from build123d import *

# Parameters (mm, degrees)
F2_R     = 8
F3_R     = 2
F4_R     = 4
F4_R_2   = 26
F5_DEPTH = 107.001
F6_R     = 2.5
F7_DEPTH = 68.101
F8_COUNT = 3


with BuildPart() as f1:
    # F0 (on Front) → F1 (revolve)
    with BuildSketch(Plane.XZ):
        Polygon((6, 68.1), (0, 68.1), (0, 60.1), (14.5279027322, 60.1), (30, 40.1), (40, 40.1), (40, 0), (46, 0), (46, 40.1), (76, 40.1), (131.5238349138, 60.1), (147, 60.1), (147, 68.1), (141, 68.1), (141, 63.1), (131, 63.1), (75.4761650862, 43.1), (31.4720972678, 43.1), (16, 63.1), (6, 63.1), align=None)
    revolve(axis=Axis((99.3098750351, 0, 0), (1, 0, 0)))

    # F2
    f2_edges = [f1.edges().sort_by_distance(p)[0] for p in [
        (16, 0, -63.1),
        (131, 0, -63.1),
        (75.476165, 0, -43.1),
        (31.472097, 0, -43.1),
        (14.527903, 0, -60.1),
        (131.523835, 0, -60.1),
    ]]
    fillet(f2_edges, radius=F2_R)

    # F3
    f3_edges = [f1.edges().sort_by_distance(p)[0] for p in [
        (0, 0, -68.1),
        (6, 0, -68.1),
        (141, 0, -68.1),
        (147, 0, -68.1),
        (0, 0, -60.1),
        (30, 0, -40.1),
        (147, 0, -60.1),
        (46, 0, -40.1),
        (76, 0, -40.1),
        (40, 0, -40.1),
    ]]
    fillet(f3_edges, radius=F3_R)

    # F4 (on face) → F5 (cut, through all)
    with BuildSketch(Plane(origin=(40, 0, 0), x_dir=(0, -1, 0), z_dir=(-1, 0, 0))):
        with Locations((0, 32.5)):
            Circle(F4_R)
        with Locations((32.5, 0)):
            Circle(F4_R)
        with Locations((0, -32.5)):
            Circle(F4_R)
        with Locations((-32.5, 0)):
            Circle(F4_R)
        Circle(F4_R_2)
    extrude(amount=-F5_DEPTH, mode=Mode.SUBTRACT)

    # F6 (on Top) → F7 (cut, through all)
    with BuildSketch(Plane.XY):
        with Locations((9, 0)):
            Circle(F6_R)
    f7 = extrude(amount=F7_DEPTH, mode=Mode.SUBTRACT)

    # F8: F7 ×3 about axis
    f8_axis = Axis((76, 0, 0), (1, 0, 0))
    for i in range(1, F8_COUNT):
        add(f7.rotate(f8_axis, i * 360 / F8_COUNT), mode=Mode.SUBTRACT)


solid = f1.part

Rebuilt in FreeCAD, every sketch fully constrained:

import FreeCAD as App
import Part
import Sketcher


def edges_at(feature, points):
    """Names of the edges that pass closest to the given points."""
    edges = feature.Shape.Edges
    near = lambda p: min(range(len(edges)), key=lambda i: edges[i].distToShape(Part.Vertex(*p))[0])
    return sorted({f"Edge{near(p) + 1}" for p in points})

doc = App.newDocument("Part")
body = doc.addObject("PartDesign::Body", "Body")

# Sketch on XZ plane
sketch1 = body.newObject("Sketcher::SketchObject", "Sketch")
sketch1.AttachmentSupport = (doc.getObject("XZ_Plane"), [""])
sketch1.MapMode = "FlatFace"
sketch1.addGeometry([
    Part.LineSegment(App.Vector(6, 68.1, 0), App.Vector(0, 68.1, 0)),  # 0
    Part.LineSegment(App.Vector(0, 68.1, 0), App.Vector(0, 60.1, 0)),  # 1
    Part.LineSegment(App.Vector(0, 60.1, 0), App.Vector(14.5, 60.1, 0)),  # 2
    Part.LineSegment(App.Vector(14.5, 60.1, 0), App.Vector(30, 40.1, 0)),  # 3
    Part.LineSegment(App.Vector(30, 40.1, 0), App.Vector(40, 40.1, 0)),  # 4
    Part.LineSegment(App.Vector(40, 40.1, 0), App.Vector(40, 0, 0)),  # 5
    Part.LineSegment(App.Vector(40, 0, 0), App.Vector(46, 0, 0)),  # 6
    Part.LineSegment(App.Vector(46, 0, 0), App.Vector(46, 40.1, 0)),  # 7
    Part.LineSegment(App.Vector(46, 40.1, 0), App.Vector(76, 40.1, 0)),  # 8
    Part.LineSegment(App.Vector(76, 40.1, 0), App.Vector(131.5, 60.1, 0)),  # 9
    Part.LineSegment(App.Vector(131.5, 60.1, 0), App.Vector(147, 60.1, 0)),  # 10
    Part.LineSegment(App.Vector(147, 60.1, 0), App.Vector(147, 68.1, 0)),  # 11
    Part.LineSegment(App.Vector(147, 68.1, 0), App.Vector(141, 68.1, 0)),  # 12
    Part.LineSegment(App.Vector(141, 68.1, 0), App.Vector(141, 63.1, 0)),  # 13
    Part.LineSegment(App.Vector(141, 63.1, 0), App.Vector(131, 63.1, 0)),  # 14
    Part.LineSegment(App.Vector(131, 63.1, 0), App.Vector(75.5, 43.1, 0)),  # 15
    Part.LineSegment(App.Vector(75.5, 43.1, 0), App.Vector(31.5, 43.1, 0)),  # 16
    Part.LineSegment(App.Vector(31.5, 43.1, 0), App.Vector(16, 63.1, 0)),  # 17
    Part.LineSegment(App.Vector(16, 63.1, 0), App.Vector(6, 63.1, 0)),  # 18
    Part.LineSegment(App.Vector(6, 63.1, 0), App.Vector(6, 68.1, 0)),  # 19
], False)
sketch1.addConstraint([
    Sketcher.Constraint("Coincident", 0, 2, 1, 1),
    Sketcher.Constraint("Coincident", 1, 2, 2, 1),
    Sketcher.Constraint("Coincident", 2, 2, 3, 1),
    Sketcher.Constraint("Coincident", 3, 2, 4, 1),
    Sketcher.Constraint("Coincident", 4, 2, 5, 1),
    Sketcher.Constraint("Coincident", 5, 2, 6, 1),
    Sketcher.Constraint("Coincident", 6, 2, 7, 1),
    Sketcher.Constraint("Coincident", 7, 2, 8, 1),
    Sketcher.Constraint("Coincident", 8, 2, 9, 1),
    Sketcher.Constraint("Coincident", 9, 2, 10, 1),
    Sketcher.Constraint("Coincident", 10, 2, 11, 1),
    Sketcher.Constraint("Coincident", 11, 2, 12, 1),
    Sketcher.Constraint("Coincident", 12, 2, 13, 1),
    Sketcher.Constraint("Coincident", 13, 2, 14, 1),
    Sketcher.Constraint("Coincident", 14, 2, 15, 1),
    Sketcher.Constraint("Coincident", 15, 2, 16, 1),
    Sketcher.Constraint("Coincident", 16, 2, 17, 1),
    Sketcher.Constraint("Coincident", 17, 2, 18, 1),
    Sketcher.Constraint("Coincident", 18, 2, 19, 1),
    Sketcher.Constraint("Coincident", 19, 2, 0, 1),
    Sketcher.Constraint("Horizontal", 0),
    Sketcher.Constraint("Vertical", 1),
    Sketcher.Constraint("Horizontal", 2),
    Sketcher.Constraint("Horizontal", 4),
    Sketcher.Constraint("Vertical", 5),
    Sketcher.Constraint("Horizontal", 6),
    Sketcher.Constraint("Vertical", 7),
    Sketcher.Constraint("Horizontal", 8),
    Sketcher.Constraint("Horizontal", 10),
    Sketcher.Constraint("Vertical", 11),
    Sketcher.Constraint("Horizontal", 12),
    Sketcher.Constraint("Vertical", 13),
    Sketcher.Constraint("Horizontal", 14),
    Sketcher.Constraint("Horizontal", 16),
    Sketcher.Constraint("Horizontal", 18),
    Sketcher.Constraint("Vertical", 19),
    Sketcher.Constraint("PointOnObject", 0, 2, -2),
    Sketcher.Constraint("PointOnObject", 5, 2, -1),
    Sketcher.Constraint("Parallel", 9, 15),
    Sketcher.Constraint("Parallel", 3, 17),
    Sketcher.Constraint("Horizontal", 4, 2, 7, 2),
    Sketcher.Constraint("Horizontal", 2, 2, 9, 2),
    Sketcher.Constraint("Horizontal", 0, 2, 11, 2),
    Sketcher.Constraint("Horizontal", 14, 2, 17, 2),
    Sketcher.Constraint("Equal", 0, 6),
    Sketcher.Constraint("Equal", 6, 12),
    Sketcher.Constraint("Equal", 4, 14),
    Sketcher.Constraint("Equal", 14, 18),
    Sketcher.Constraint("Equal", 9, 15),
    Sketcher.Constraint("DistanceX", 0, 2, 0, 1, 6.0),
    Sketcher.Constraint("DistanceX", 4, 1, 4, 2, 10.0),
    Sketcher.Constraint("DistanceX", 8, 1, 8, 2, 30.0),
    Sketcher.Constraint("DistanceY", 1, 2, 1, 1, 8.0),
    Sketcher.Constraint("DistanceY", 13, 2, 13, 1, 5.0),
    Sketcher.Constraint("DistanceY", 5, 2, 5, 1, 40.1),
    Sketcher.Constraint("DistanceX", -1, 1, 3, 2, 30.0),
    Sketcher.Constraint("DistanceX", -1, 1, 10, 2, 147.0),
    Sketcher.Constraint("DistanceY", 3, 2, 2, 2, 20.0),
    Sketcher.Constraint("Distance", 3, 25.286079),
    Sketcher.Constraint("DistanceX", 10, 1, 10, 2, 15.476165),
])
revolution = body.newObject("PartDesign::Revolution", "Revolution")
revolution.Profile = sketch1
revolution.ReferenceAxis = (sketch1, ["H_Axis"])
revolution.Angle = 360
doc.recompute()

fillet = body.newObject("PartDesign::Fillet", "Fillet")
fillet.Base = (revolution, edges_at(revolution, [
    (16, 0, -63.1),
    (131, 0, -63.1),
    (75.476, 0, -43.1),
    (31.472, 0, -43.1),
    (14.528, 0, -60.1),
    (131.524, 0, -60.1),
]))
fillet.Radius = 8
doc.recompute()

fillet2 = body.newObject("PartDesign::Fillet", "Fillet001")
fillet2.Base = (fillet, edges_at(fillet, [
    (0, 0, -68.1),
    (6, 0, -68.1),
    (141, 0, -68.1),
    (147, 0, -68.1),
    (0, 0, -60.1),
    (30, 0, -40.1),
    (147, 0, -60.1),
    (46, 0, -40.1),
    (76, 0, -40.1),
    (40, 0, -40.1),
]))
fillet2.Radius = 2

# Sketch on YZ plane
sketch2 = body.newObject("Sketcher::SketchObject", "Sketch001")
sketch2.AttachmentSupport = (doc.getObject("YZ_Plane"), [""])
sketch2.MapMode = "FlatFace"
sketch2.AttachmentOffset = App.Placement(App.Vector(0, 0, 40), App.Rotation())
sketch2.addGeometry([
    Part.Circle(App.Vector(0, 32.5, 0), App.Vector(0, 0, 1), 4),  # 0
    Part.Circle(App.Vector(-32.5, 0, 0), App.Vector(0, 0, 1), 4),  # 1
    Part.Circle(App.Vector(0, -32.5, 0), App.Vector(0, 0, 1), 4),  # 2
    Part.Circle(App.Vector(32.5, 0, 0), App.Vector(0, 0, 1), 4),  # 3
    Part.Circle(App.Vector(0, 0, 0), App.Vector(0, 0, 1), 26),  # 4
], False)
sketch2.addConstraint([
    Sketcher.Constraint("Coincident", 4, 3, -1, 1),
    Sketcher.Constraint("Equal", 0, 1),
    Sketcher.Constraint("Equal", 1, 2),
    Sketcher.Constraint("Equal", 2, 3),
    Sketcher.Constraint("Symmetric", 0, 3, 2, 3, -1, 1),
    Sketcher.Constraint("Symmetric", 1, 3, 3, 3, -1, 1),
    Sketcher.Constraint("PointOnObject", 0, 3, -2),
    Sketcher.Constraint("PointOnObject", 1, 3, -1),
    Sketcher.Constraint("Diameter", 0, 8.0),
    Sketcher.Constraint("Diameter", 4, 52.0),
    Sketcher.Constraint("DistanceY", 2, 3, 0, 3, 65.0),
    Sketcher.Constraint("DistanceX", 1, 3, 3, 3, 65.0),
])
pocket1 = body.newObject("PartDesign::Pocket", "Pocket")
pocket1.Profile = sketch2
pocket1.Type = "ThroughAll"
pocket1.Reversed = True

# Sketch on XY plane
sketch3 = body.newObject("Sketcher::SketchObject", "Sketch002")
sketch3.AttachmentSupport = (doc.getObject("XY_Plane"), [""])
sketch3.MapMode = "FlatFace"
sketch3.addGeometry(Part.Circle(App.Vector(9, 0, 0), App.Vector(0, 0, 1), 2.5), False)
sketch3.addConstraint([
    Sketcher.Constraint("PointOnObject", 0, 3, -1),
    Sketcher.Constraint("Diameter", 0, 5.0),
    Sketcher.Constraint("DistanceX", -1, 1, 0, 3, 9.0),
])
pocket2 = body.newObject("PartDesign::Pocket", "Pocket001")
pocket2.Profile = sketch3
pocket2.Type = "ThroughAll"
pocket2.Reversed = True
doc.recompute()

polarpattern = body.newObject("PartDesign::PolarPattern", "PolarPattern")
polarpattern.Originals = [pocket2]
polarpattern.Axis = (doc.getObject("X_Axis"), [""])
polarpattern.Angle = 360
polarpattern.Occurrences = 3
body.Tip = polarpattern

doc.recompute()
